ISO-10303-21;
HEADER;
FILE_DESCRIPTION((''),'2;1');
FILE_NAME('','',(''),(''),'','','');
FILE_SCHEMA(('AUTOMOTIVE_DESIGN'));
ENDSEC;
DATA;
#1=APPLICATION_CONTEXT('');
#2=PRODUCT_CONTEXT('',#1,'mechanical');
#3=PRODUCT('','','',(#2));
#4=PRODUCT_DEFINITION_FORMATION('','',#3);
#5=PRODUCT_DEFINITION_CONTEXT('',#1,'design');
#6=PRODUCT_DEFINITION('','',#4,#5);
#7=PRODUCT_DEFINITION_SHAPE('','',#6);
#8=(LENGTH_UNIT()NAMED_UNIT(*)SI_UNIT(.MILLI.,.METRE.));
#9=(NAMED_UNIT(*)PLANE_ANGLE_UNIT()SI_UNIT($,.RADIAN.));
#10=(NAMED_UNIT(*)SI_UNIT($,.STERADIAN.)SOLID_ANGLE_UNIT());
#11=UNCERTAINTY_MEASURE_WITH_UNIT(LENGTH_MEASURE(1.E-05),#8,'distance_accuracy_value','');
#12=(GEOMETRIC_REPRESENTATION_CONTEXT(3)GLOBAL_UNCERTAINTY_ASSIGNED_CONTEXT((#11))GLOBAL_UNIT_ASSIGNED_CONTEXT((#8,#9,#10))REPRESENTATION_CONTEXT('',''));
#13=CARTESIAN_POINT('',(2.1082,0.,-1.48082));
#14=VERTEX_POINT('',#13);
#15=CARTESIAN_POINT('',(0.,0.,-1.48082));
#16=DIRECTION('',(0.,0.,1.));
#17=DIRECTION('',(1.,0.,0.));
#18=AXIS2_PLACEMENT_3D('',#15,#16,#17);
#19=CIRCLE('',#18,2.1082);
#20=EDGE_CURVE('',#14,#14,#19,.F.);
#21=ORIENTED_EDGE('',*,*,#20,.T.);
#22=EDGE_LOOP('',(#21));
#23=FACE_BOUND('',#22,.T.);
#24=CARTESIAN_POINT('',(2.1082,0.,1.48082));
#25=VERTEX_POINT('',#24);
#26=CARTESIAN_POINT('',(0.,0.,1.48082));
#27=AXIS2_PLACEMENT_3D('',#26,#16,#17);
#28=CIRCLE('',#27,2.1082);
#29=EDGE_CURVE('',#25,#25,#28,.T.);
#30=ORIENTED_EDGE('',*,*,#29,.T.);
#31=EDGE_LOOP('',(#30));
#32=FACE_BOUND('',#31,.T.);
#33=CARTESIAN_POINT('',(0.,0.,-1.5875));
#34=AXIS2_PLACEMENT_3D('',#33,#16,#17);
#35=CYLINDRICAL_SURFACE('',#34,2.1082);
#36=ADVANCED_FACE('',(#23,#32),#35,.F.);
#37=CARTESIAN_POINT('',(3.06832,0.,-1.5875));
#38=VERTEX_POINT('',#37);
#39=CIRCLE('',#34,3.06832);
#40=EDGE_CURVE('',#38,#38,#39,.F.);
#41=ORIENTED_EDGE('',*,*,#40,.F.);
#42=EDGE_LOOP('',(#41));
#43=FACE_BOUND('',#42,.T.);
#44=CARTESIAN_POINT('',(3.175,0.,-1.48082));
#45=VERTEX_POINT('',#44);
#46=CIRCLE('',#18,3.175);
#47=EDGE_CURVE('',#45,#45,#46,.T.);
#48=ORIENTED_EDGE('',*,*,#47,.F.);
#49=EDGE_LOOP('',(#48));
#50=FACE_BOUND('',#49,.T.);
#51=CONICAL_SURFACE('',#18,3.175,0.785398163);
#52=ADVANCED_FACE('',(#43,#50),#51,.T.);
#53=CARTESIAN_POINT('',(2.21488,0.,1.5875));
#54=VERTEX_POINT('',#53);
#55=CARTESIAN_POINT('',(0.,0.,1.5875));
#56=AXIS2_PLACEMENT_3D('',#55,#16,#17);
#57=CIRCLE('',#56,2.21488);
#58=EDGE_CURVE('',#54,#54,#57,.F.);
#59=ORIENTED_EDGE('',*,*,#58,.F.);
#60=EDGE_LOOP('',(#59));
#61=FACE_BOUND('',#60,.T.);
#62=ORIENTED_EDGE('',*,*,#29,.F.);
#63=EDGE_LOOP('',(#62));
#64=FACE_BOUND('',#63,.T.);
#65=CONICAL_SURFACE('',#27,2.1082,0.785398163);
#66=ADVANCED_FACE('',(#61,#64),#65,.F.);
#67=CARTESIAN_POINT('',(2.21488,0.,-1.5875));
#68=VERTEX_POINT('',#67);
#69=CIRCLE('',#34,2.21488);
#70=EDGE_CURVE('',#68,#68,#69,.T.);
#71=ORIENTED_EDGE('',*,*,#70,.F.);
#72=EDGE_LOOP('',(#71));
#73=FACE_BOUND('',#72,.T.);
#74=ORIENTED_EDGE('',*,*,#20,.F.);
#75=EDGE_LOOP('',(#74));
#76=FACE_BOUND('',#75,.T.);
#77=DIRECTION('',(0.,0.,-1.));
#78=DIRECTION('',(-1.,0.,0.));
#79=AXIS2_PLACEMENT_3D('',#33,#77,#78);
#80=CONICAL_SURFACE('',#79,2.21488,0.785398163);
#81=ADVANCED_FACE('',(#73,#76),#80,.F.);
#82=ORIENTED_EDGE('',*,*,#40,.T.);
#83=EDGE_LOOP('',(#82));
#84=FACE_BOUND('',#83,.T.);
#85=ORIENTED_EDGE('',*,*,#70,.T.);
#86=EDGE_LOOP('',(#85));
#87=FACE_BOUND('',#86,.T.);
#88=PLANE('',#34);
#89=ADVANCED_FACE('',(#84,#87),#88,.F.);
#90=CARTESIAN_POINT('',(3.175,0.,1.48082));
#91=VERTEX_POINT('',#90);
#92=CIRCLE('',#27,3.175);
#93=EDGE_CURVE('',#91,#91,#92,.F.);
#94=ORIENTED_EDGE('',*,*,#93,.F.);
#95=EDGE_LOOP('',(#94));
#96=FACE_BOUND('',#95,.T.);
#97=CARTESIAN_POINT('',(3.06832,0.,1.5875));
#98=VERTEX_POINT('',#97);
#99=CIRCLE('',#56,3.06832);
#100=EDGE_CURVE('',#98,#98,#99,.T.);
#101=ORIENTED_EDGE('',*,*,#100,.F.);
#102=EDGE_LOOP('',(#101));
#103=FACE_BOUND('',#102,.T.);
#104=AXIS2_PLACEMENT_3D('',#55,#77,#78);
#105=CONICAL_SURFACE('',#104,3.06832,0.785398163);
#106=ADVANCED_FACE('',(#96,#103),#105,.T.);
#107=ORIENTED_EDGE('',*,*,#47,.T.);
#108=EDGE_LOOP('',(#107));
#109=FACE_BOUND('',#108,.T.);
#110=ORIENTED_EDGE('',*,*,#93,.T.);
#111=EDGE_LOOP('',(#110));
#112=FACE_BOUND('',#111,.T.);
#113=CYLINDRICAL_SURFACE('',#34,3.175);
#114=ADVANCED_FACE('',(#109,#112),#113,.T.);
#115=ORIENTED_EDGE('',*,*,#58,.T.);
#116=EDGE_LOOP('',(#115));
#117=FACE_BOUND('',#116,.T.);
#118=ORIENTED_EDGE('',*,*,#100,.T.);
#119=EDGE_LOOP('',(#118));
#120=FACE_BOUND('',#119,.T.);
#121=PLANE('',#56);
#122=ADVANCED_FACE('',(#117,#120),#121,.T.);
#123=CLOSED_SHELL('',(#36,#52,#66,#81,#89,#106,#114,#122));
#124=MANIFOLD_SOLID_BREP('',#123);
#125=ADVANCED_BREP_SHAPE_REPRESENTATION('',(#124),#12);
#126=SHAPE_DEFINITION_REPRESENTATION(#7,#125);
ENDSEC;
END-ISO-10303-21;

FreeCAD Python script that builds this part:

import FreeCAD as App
import Part
import Sketcher
from FreeCAD import Vector
Q = App.Units.Quantity


def edges_at(feature, points):
    """Names of the edges that pass closest to the given points."""
    edges = feature.Shape.Edges
    near = lambda p: min(range(len(edges)), key=lambda i: edges[i].distToShape(Part.Vertex(*p))[0])
    return sorted({f"Edge{near(p) + 1}" for p in points})

doc = App.newDocument("Part")
params = doc.addObject("Spreadsheet::Sheet", "Params")
for row, (alias, value) in enumerate([
    ("sketch1_diameter", "0.25 in"),
    ("sketch1_diameter2", "0.166 in"),
    ("pad1_length", "0.0625 in"),
    ("pad1_length2", "0.0625 in"),
    ("chamfer_size", "0.0042 in"),
], start=1):
    params.set(f"A{row}", alias)
    params.set(f"B{row}", "=" + value)
    params.setAlias(f"B{row}", alias)

body = doc.addObject("PartDesign::Body", "Body")

sketch1 = body.newObject("Sketcher::SketchObject", "Sketch")
sketch1.AttachmentSupport = (doc.getObject("XY_Plane"), [""])
sketch1.MapMode = "FlatFace"
sketch1.addGeometry([
    Part.Circle(Vector(0, 0, 0), Vector(0, 0, 1), 3.2),
    Part.Circle(Vector(0, 0, 0), Vector(0, 0, 1), 2.1),
], False)
sketch1.addConstraint([
    Sketcher.Constraint("Coincident", 0, 3, -1, 1),
    Sketcher.Constraint("Coincident", 1, 3, -1, 1),
    Sketcher.Constraint("Diameter", 0, Q("0.25 in")),
    Sketcher.Constraint("Diameter", 1, Q("0.166 in")),
])
sketch1.setExpression("Constraints[2]", "Params.sketch1_diameter")
sketch1.setExpression("Constraints[3]", "Params.sketch1_diameter2")
pad1 = body.newObject("PartDesign::Pad", "Pad")
pad1.Profile = sketch1
pad1.Type = "TwoLengths"
pad1.setExpression("Length", "Params.pad1_length")
pad1.setExpression("Length2", "Params.pad1_length2")
doc.recompute()

chamfer = body.newObject("PartDesign::Chamfer", "Chamfer")
chamfer.Base = (pad1, edges_at(pad1, [
    (-3.175, 0, -1.587),
    (-2.108, 0, -1.587),
    (-3.175, 0, 1.587),
    (-2.108, 0, 1.587),
]))
chamfer.setExpression("Size", "Params.chamfer_size")

doc.recompute()
